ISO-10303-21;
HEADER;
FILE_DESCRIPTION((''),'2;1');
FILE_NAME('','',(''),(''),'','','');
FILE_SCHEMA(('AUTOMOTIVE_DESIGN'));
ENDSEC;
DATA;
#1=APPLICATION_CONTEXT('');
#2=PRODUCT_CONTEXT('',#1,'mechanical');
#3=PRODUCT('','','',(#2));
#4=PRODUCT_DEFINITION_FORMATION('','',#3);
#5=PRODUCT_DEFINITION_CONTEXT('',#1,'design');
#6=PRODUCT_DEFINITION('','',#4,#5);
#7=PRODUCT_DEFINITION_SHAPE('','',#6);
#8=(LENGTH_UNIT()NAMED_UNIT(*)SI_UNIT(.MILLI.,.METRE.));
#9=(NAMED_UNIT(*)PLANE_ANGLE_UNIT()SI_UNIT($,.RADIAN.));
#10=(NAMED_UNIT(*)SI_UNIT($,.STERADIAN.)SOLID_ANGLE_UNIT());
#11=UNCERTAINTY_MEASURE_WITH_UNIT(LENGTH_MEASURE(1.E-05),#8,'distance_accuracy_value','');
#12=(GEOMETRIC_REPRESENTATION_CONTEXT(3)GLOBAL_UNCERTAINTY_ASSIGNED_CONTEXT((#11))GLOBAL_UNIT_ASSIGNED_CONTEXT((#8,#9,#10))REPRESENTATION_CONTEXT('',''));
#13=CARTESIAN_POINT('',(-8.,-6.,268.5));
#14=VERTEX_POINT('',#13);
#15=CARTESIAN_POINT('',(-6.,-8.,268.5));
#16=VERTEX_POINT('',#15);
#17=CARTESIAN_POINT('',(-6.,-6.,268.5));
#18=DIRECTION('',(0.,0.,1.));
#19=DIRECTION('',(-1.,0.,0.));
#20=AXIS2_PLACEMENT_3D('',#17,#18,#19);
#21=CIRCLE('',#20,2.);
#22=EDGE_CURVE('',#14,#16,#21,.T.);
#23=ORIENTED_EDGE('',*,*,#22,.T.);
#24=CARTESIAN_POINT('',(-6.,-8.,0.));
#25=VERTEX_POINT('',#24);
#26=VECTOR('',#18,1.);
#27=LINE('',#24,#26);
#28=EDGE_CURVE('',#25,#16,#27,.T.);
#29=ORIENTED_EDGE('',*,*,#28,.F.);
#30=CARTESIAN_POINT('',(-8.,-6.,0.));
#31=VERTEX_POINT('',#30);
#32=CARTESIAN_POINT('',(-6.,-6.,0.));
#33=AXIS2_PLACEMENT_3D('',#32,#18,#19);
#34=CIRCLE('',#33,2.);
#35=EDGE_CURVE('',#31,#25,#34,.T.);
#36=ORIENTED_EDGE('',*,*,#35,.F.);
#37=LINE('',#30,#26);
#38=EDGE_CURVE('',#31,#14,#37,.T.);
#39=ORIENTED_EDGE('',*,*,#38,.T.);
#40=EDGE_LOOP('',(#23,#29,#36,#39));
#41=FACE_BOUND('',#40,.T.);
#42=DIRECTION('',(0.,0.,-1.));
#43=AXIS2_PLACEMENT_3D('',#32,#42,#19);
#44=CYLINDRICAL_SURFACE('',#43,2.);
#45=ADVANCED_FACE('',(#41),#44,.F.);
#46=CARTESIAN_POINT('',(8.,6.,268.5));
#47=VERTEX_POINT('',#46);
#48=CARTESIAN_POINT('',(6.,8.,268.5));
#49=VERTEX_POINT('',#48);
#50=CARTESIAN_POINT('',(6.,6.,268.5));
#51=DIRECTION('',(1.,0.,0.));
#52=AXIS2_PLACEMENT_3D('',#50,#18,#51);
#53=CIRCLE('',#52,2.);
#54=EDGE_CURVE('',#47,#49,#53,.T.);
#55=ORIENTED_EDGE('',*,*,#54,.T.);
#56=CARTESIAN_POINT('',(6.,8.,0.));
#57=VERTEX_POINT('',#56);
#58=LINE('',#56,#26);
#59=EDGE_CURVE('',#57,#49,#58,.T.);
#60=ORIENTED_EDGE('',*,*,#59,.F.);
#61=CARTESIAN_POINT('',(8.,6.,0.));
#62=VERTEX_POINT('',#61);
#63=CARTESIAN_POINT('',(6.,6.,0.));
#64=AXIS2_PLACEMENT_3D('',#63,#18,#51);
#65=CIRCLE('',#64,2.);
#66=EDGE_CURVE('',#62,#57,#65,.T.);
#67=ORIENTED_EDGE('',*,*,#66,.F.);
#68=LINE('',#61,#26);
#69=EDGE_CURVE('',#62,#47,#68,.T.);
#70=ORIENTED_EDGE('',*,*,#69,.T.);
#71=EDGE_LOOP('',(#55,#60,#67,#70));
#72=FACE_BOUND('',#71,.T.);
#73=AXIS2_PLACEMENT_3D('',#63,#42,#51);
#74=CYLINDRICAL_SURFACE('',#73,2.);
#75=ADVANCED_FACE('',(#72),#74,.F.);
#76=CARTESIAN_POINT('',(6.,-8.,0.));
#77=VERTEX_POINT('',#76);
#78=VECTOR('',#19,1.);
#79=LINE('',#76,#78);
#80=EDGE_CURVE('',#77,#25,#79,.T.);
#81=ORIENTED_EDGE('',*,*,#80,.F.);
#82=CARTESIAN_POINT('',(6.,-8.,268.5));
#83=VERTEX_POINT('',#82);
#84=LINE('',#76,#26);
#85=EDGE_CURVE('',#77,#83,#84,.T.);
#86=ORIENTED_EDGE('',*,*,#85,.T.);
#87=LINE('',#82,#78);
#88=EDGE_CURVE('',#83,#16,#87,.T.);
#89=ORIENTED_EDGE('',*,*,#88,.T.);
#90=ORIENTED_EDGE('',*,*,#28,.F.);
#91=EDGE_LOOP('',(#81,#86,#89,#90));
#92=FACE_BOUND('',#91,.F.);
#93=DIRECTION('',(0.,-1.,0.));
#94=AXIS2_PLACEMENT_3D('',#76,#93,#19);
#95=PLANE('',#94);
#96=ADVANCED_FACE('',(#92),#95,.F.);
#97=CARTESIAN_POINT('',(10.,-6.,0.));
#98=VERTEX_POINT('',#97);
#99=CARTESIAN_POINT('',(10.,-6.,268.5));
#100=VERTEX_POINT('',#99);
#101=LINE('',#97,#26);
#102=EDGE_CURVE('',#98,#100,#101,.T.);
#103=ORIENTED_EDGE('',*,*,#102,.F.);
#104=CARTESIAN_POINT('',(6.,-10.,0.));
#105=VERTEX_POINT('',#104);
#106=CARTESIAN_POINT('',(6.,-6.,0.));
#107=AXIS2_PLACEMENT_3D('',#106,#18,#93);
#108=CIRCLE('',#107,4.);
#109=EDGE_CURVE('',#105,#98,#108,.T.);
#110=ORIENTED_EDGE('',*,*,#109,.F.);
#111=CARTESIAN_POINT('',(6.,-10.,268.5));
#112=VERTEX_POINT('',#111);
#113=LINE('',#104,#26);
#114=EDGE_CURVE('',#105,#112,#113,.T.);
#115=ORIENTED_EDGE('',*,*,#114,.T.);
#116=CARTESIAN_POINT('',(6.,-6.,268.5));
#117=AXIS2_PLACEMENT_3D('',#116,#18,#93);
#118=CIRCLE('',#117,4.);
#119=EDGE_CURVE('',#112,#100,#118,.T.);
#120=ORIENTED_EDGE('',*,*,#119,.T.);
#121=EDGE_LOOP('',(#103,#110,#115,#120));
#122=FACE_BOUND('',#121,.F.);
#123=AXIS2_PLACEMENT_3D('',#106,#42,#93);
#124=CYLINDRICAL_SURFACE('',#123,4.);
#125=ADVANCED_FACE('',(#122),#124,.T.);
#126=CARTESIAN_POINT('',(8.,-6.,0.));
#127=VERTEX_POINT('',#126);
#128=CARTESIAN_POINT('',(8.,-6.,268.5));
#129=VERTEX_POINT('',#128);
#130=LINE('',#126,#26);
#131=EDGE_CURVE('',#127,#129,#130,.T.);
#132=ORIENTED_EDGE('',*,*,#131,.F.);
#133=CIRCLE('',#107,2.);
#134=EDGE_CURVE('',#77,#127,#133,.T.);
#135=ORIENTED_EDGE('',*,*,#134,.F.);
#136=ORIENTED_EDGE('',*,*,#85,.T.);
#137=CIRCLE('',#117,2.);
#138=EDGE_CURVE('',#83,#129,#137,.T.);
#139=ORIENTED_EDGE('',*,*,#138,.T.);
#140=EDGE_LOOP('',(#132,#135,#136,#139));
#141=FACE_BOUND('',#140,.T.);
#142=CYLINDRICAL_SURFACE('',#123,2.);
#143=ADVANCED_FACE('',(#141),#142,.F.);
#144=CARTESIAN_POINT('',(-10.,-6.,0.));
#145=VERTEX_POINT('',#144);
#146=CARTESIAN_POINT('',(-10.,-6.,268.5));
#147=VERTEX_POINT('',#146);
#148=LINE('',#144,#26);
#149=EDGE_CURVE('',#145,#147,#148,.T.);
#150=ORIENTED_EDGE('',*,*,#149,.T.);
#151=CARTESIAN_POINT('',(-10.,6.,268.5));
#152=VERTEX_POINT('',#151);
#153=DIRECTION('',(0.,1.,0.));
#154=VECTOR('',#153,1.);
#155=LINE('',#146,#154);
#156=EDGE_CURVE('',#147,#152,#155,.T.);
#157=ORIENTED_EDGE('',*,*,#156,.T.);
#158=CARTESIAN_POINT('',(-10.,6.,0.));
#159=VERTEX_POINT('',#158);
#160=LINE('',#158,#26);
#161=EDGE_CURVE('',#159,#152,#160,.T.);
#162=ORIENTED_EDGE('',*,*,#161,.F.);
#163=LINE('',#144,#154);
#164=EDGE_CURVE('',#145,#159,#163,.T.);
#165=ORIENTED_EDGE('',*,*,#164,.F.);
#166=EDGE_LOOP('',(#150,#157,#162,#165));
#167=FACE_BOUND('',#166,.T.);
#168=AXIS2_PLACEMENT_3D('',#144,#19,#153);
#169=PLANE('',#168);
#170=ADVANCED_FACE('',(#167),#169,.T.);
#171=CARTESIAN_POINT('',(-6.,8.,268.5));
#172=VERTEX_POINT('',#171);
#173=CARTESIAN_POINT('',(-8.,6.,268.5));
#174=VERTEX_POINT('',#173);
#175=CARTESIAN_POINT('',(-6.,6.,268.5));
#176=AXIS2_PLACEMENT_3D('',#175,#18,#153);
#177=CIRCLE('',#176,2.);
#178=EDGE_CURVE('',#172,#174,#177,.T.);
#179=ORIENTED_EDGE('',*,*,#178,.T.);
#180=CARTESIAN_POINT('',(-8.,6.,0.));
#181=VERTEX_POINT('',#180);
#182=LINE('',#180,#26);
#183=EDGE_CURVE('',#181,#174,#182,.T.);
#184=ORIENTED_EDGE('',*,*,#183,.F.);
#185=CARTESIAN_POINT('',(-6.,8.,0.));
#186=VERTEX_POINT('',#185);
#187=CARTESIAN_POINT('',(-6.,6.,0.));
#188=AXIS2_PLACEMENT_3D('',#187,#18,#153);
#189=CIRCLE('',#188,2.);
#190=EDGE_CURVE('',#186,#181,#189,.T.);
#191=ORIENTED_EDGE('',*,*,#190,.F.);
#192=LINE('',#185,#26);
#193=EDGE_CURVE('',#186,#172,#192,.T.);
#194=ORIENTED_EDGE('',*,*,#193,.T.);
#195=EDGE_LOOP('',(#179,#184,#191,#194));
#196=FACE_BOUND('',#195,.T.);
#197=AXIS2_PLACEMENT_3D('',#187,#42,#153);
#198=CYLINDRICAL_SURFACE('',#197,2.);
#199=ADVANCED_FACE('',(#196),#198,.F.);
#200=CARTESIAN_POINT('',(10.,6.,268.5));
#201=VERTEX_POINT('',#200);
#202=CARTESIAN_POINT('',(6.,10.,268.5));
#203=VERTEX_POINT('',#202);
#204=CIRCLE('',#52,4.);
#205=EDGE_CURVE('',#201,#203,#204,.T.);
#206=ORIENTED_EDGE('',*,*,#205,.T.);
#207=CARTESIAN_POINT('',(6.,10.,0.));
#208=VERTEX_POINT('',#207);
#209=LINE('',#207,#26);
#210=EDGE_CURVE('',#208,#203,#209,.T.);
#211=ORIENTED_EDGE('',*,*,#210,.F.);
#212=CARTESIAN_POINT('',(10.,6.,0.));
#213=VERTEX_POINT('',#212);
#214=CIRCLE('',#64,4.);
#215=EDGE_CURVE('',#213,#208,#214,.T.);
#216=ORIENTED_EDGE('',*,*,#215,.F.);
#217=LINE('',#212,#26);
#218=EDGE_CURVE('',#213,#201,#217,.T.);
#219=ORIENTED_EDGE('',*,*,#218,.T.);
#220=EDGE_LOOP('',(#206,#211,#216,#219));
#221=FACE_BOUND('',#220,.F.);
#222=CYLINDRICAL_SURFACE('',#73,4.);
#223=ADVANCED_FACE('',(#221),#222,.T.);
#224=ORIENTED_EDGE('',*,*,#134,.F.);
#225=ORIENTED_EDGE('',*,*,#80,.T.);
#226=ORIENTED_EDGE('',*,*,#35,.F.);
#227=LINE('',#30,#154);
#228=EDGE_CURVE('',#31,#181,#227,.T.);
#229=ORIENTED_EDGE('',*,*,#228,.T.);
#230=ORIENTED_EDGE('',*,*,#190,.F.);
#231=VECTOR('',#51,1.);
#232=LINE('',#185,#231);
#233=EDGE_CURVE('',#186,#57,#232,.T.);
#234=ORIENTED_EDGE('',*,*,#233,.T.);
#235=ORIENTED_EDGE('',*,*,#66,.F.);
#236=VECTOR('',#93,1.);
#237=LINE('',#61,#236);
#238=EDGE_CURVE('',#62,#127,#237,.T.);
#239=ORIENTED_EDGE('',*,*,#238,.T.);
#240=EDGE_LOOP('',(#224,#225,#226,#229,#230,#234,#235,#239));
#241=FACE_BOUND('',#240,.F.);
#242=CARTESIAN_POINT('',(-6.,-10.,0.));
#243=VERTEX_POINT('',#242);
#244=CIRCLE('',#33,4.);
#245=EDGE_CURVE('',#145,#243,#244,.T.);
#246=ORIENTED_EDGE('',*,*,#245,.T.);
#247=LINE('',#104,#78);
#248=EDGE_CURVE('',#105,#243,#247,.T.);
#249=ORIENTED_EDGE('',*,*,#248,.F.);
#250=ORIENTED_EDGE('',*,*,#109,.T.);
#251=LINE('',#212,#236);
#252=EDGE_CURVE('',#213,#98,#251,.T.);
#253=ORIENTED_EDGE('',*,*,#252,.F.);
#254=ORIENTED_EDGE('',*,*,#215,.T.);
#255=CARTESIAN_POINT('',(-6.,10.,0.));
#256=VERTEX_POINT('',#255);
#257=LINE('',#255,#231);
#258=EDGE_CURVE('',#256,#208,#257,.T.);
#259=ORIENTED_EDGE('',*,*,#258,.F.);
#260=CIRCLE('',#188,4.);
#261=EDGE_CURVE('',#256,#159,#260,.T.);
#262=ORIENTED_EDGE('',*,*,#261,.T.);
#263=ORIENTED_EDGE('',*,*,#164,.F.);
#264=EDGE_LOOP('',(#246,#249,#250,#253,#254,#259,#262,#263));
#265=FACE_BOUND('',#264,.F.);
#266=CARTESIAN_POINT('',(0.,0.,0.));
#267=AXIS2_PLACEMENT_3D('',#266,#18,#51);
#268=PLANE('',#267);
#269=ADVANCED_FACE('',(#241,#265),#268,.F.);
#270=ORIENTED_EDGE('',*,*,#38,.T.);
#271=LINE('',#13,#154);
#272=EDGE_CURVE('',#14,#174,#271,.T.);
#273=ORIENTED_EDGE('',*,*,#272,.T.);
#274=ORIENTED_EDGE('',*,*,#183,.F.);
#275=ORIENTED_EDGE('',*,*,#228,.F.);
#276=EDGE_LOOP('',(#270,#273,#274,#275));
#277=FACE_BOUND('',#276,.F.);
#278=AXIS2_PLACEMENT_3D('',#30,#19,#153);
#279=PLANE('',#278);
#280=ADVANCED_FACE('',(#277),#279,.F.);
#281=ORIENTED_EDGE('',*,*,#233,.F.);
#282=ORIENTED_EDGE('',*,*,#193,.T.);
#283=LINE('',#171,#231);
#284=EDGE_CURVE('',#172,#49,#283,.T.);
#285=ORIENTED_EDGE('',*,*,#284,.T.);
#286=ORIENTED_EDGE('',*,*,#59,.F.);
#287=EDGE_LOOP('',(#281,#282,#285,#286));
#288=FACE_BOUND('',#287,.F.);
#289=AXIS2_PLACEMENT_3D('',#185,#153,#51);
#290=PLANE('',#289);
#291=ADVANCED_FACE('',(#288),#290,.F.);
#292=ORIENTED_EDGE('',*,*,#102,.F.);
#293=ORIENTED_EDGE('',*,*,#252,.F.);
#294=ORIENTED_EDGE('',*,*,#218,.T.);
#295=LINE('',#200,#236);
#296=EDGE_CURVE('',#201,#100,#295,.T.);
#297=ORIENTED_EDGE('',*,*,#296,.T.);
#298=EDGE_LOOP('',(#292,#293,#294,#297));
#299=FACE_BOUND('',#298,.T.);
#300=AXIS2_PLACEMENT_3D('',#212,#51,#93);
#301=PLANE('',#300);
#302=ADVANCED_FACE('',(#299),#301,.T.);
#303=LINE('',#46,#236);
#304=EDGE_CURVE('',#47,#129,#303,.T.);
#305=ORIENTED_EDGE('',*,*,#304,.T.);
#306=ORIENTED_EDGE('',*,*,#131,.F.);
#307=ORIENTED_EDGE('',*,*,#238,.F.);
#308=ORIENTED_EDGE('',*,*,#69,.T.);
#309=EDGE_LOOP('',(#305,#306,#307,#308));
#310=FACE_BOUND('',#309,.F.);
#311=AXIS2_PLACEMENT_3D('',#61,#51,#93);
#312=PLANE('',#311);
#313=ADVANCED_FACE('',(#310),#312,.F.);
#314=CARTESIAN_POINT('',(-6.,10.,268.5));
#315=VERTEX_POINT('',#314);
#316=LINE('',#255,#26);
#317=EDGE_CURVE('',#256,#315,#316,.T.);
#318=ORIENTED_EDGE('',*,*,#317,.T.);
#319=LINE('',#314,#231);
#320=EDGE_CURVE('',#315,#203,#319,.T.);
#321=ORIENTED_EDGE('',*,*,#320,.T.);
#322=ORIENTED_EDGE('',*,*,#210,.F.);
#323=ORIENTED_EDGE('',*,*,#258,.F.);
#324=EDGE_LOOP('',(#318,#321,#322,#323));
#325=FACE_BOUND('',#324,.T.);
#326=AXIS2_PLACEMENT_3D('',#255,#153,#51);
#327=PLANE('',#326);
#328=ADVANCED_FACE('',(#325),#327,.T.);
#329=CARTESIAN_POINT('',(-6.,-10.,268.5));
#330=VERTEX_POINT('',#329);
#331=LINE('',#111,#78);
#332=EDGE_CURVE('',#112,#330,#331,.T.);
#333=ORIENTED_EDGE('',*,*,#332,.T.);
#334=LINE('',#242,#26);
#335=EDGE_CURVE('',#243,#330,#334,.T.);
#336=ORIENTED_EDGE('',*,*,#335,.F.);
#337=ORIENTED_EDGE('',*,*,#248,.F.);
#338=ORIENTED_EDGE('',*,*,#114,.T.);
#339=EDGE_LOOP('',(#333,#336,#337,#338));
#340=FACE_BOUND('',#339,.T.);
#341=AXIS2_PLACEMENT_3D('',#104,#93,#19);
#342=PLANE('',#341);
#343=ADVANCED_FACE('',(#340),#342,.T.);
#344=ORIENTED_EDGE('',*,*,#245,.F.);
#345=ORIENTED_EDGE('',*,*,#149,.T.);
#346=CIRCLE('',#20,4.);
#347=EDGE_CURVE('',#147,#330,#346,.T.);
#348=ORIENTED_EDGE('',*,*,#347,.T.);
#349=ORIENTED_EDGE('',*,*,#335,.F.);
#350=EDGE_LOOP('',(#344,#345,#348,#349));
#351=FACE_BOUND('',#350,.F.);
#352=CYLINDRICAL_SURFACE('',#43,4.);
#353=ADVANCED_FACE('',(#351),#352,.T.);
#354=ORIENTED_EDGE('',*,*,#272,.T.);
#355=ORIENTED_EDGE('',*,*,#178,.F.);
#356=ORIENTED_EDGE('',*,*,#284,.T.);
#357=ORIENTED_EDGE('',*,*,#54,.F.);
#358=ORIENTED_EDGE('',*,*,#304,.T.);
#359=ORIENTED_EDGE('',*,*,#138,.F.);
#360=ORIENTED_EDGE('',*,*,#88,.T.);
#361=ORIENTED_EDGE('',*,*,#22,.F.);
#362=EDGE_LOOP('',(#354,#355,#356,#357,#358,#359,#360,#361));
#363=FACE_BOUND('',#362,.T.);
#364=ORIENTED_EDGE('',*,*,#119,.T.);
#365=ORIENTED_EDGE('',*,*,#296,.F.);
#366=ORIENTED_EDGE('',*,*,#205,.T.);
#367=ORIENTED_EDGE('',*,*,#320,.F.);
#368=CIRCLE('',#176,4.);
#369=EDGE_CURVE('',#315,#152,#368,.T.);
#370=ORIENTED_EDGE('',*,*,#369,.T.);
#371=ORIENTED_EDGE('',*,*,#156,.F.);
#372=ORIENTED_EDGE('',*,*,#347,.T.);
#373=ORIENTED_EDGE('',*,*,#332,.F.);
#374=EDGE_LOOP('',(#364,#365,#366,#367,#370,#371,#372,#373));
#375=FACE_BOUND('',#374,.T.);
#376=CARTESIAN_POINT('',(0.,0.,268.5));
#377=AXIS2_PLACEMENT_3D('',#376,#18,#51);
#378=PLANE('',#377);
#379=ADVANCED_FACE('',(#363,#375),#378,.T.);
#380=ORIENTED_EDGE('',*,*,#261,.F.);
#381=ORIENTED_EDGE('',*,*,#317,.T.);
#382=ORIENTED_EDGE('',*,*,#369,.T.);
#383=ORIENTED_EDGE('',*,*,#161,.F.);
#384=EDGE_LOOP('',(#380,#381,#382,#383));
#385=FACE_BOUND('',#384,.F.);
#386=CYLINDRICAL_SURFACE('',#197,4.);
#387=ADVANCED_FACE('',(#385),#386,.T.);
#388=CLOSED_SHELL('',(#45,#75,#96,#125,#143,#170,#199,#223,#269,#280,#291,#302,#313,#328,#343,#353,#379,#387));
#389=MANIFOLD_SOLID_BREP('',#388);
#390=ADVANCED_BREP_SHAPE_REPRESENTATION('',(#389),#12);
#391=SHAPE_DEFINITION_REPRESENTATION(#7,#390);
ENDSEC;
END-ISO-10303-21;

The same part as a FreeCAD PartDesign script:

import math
import FreeCAD as App
import Part
import Sketcher
Q = App.Units.Quantity

doc = App.newDocument("Part")
body = doc.addObject("PartDesign::Body", "Body")

# Sketch on XY plane
sketch1 = body.newObject("Sketcher::SketchObject", "Sketch")
sketch1.AttachmentSupport = (doc.getObject("XY_Plane"), [""])
sketch1.MapMode = "FlatFace"
sketch1.addGeometry(Part.LineSegment(App.Vector(-10, 6, 0), App.Vector(-10, -6, 0)), False)
sketch1.addGeometry(Part.ArcOfCircle(Part.Circle(App.Vector(-6, -6, 0), App.Vector(0, 0, 1), 4), math.radians(180), math.radians(270)), False)
sketch1.addGeometry(Part.LineSegment(App.Vector(-6, -10, 0), App.Vector(6, -10, 0)), False)
sketch1.addGeometry(Part.ArcOfCircle(Part.Circle(App.Vector(6, -6, 0), App.Vector(0, 0, 1), 4), math.radians(-90), math.radians(0)), False)
sketch1.addGeometry(Part.LineSegment(App.Vector(10, -6, 0), App.Vector(10, 6, 0)), False)
sketch1.addGeometry(Part.ArcOfCircle(Part.Circle(App.Vector(6, 6, 0), App.Vector(0, 0, 1), 4), math.radians(0), math.radians(90)), False)
sketch1.addGeometry(Part.LineSegment(App.Vector(6, 10, 0), App.Vector(-6, 10, 0)), False)
sketch1.addGeometry(Part.ArcOfCircle(Part.Circle(App.Vector(-6, 6, 0), App.Vector(0, 0, 1), 4), math.radians(90), math.radians(180)), False)
sketch1.addGeometry(Part.ArcOfCircle(Part.Circle(App.Vector(-6, 6, 0), App.Vector(0, 0, 1), 2), math.radians(90), math.radians(180)), False)
sketch1.addGeometry(Part.LineSegment(App.Vector(-6, 8, 0), App.Vector(6, 8, 0)), False)
sketch1.addGeometry(Part.ArcOfCircle(Part.Circle(App.Vector(6, 6, 0), App.Vector(0, 0, 1), 2), math.radians(0), math.radians(90)), False)
sketch1.addGeometry(Part.LineSegment(App.Vector(8, 6, 0), App.Vector(8, -6, 0)), False)
sketch1.addGeometry(Part.ArcOfCircle(Part.Circle(App.Vector(6, -6, 0), App.Vector(0, 0, 1), 2), math.radians(-90), math.radians(0)), False)
sketch1.addGeometry(Part.LineSegment(App.Vector(6, -8, 0), App.Vector(-6, -8, 0)), False)
sketch1.addGeometry(Part.ArcOfCircle(Part.Circle(App.Vector(-6, -6, 0), App.Vector(0, 0, 1), 2), math.radians(180), math.radians(270)), False)
sketch1.addGeometry(Part.LineSegment(App.Vector(-8, -6, 0), App.Vector(-8, 6, 0)), False)
sketch1.addConstraint(Sketcher.Constraint("Tangent", 0, 2, 1, 1))
sketch1.addConstraint(Sketcher.Constraint("Tangent", 1, 2, 2, 1))
sketch1.addConstraint(Sketcher.Constraint("Tangent", 2, 2, 3, 1))
sketch1.addConstraint(Sketcher.Constraint("Tangent", 3, 2, 4, 1))
sketch1.addConstraint(Sketcher.Constraint("Tangent", 4, 2, 5, 1))
sketch1.addConstraint(Sketcher.Constraint("Tangent", 5, 2, 6, 1))
sketch1.addConstraint(Sketcher.Constraint("Tangent", 6, 2, 7, 1))
sketch1.addConstraint(Sketcher.Constraint("Tangent", 7, 2, 0, 1))
sketch1.addConstraint(Sketcher.Constraint("Tangent", 8, 1, 9, 1))
sketch1.addConstraint(Sketcher.Constraint("Tangent", 9, 2, 10, 2))
sketch1.addConstraint(Sketcher.Constraint("Tangent", 10, 1, 11, 1))
sketch1.addConstraint(Sketcher.Constraint("Tangent", 11, 2, 12, 2))
sketch1.addConstraint(Sketcher.Constraint("Tangent", 12, 1, 13, 1))
sketch1.addConstraint(Sketcher.Constraint("Tangent", 13, 2, 14, 2))
sketch1.addConstraint(Sketcher.Constraint("Tangent", 14, 1, 15, 1))
sketch1.addConstraint(Sketcher.Constraint("Tangent", 15, 2, 8, 2))
sketch1.addConstraint(Sketcher.Constraint("Vertical", 0))
sketch1.addConstraint(Sketcher.Constraint("Horizontal", 2))
sketch1.addConstraint(Sketcher.Constraint("Vertical", 4))
sketch1.addConstraint(Sketcher.Constraint("Horizontal", 6))
sketch1.addConstraint(Sketcher.Constraint("Horizontal", 9))
sketch1.addConstraint(Sketcher.Constraint("Vertical", 11))
sketch1.addConstraint(Sketcher.Constraint("Horizontal", 13))
sketch1.addConstraint(Sketcher.Constraint("Vertical", 15))
sketch1.addConstraint(Sketcher.Constraint("Coincident", 8, 3, 7, 3))
sketch1.addConstraint(Sketcher.Constraint("Coincident", 10, 3, 5, 3))
sketch1.addConstraint(Sketcher.Constraint("Coincident", 12, 3, 3, 3))
sketch1.addConstraint(Sketcher.Constraint("Equal", 1, 3))
sketch1.addConstraint(Sketcher.Constraint("Equal", 3, 5))
sketch1.addConstraint(Sketcher.Constraint("Equal", 5, 7))
sketch1.addConstraint(Sketcher.Constraint("Equal", 12, 14))
sketch1.addConstraint(Sketcher.Constraint("Symmetric", 1, 3, 5, 3, -1, 1))
sketch1.addConstraint(Sketcher.Constraint("Equal", 13, 0))
sketch1.addConstraint(Sketcher.Constraint("Radius", 1, Q("4 mm")))
sketch1.addConstraint(Sketcher.Constraint("Radius", 8, Q("2 mm")))
sketch1.addConstraint(Sketcher.Constraint("DistanceX", 0, 2, -1, 1, Q("10 mm")))
pad1 = body.newObject("PartDesign::Pad", "Pad")
pad1.Profile = sketch1
pad1.Length = 268.5

doc.recompute()
